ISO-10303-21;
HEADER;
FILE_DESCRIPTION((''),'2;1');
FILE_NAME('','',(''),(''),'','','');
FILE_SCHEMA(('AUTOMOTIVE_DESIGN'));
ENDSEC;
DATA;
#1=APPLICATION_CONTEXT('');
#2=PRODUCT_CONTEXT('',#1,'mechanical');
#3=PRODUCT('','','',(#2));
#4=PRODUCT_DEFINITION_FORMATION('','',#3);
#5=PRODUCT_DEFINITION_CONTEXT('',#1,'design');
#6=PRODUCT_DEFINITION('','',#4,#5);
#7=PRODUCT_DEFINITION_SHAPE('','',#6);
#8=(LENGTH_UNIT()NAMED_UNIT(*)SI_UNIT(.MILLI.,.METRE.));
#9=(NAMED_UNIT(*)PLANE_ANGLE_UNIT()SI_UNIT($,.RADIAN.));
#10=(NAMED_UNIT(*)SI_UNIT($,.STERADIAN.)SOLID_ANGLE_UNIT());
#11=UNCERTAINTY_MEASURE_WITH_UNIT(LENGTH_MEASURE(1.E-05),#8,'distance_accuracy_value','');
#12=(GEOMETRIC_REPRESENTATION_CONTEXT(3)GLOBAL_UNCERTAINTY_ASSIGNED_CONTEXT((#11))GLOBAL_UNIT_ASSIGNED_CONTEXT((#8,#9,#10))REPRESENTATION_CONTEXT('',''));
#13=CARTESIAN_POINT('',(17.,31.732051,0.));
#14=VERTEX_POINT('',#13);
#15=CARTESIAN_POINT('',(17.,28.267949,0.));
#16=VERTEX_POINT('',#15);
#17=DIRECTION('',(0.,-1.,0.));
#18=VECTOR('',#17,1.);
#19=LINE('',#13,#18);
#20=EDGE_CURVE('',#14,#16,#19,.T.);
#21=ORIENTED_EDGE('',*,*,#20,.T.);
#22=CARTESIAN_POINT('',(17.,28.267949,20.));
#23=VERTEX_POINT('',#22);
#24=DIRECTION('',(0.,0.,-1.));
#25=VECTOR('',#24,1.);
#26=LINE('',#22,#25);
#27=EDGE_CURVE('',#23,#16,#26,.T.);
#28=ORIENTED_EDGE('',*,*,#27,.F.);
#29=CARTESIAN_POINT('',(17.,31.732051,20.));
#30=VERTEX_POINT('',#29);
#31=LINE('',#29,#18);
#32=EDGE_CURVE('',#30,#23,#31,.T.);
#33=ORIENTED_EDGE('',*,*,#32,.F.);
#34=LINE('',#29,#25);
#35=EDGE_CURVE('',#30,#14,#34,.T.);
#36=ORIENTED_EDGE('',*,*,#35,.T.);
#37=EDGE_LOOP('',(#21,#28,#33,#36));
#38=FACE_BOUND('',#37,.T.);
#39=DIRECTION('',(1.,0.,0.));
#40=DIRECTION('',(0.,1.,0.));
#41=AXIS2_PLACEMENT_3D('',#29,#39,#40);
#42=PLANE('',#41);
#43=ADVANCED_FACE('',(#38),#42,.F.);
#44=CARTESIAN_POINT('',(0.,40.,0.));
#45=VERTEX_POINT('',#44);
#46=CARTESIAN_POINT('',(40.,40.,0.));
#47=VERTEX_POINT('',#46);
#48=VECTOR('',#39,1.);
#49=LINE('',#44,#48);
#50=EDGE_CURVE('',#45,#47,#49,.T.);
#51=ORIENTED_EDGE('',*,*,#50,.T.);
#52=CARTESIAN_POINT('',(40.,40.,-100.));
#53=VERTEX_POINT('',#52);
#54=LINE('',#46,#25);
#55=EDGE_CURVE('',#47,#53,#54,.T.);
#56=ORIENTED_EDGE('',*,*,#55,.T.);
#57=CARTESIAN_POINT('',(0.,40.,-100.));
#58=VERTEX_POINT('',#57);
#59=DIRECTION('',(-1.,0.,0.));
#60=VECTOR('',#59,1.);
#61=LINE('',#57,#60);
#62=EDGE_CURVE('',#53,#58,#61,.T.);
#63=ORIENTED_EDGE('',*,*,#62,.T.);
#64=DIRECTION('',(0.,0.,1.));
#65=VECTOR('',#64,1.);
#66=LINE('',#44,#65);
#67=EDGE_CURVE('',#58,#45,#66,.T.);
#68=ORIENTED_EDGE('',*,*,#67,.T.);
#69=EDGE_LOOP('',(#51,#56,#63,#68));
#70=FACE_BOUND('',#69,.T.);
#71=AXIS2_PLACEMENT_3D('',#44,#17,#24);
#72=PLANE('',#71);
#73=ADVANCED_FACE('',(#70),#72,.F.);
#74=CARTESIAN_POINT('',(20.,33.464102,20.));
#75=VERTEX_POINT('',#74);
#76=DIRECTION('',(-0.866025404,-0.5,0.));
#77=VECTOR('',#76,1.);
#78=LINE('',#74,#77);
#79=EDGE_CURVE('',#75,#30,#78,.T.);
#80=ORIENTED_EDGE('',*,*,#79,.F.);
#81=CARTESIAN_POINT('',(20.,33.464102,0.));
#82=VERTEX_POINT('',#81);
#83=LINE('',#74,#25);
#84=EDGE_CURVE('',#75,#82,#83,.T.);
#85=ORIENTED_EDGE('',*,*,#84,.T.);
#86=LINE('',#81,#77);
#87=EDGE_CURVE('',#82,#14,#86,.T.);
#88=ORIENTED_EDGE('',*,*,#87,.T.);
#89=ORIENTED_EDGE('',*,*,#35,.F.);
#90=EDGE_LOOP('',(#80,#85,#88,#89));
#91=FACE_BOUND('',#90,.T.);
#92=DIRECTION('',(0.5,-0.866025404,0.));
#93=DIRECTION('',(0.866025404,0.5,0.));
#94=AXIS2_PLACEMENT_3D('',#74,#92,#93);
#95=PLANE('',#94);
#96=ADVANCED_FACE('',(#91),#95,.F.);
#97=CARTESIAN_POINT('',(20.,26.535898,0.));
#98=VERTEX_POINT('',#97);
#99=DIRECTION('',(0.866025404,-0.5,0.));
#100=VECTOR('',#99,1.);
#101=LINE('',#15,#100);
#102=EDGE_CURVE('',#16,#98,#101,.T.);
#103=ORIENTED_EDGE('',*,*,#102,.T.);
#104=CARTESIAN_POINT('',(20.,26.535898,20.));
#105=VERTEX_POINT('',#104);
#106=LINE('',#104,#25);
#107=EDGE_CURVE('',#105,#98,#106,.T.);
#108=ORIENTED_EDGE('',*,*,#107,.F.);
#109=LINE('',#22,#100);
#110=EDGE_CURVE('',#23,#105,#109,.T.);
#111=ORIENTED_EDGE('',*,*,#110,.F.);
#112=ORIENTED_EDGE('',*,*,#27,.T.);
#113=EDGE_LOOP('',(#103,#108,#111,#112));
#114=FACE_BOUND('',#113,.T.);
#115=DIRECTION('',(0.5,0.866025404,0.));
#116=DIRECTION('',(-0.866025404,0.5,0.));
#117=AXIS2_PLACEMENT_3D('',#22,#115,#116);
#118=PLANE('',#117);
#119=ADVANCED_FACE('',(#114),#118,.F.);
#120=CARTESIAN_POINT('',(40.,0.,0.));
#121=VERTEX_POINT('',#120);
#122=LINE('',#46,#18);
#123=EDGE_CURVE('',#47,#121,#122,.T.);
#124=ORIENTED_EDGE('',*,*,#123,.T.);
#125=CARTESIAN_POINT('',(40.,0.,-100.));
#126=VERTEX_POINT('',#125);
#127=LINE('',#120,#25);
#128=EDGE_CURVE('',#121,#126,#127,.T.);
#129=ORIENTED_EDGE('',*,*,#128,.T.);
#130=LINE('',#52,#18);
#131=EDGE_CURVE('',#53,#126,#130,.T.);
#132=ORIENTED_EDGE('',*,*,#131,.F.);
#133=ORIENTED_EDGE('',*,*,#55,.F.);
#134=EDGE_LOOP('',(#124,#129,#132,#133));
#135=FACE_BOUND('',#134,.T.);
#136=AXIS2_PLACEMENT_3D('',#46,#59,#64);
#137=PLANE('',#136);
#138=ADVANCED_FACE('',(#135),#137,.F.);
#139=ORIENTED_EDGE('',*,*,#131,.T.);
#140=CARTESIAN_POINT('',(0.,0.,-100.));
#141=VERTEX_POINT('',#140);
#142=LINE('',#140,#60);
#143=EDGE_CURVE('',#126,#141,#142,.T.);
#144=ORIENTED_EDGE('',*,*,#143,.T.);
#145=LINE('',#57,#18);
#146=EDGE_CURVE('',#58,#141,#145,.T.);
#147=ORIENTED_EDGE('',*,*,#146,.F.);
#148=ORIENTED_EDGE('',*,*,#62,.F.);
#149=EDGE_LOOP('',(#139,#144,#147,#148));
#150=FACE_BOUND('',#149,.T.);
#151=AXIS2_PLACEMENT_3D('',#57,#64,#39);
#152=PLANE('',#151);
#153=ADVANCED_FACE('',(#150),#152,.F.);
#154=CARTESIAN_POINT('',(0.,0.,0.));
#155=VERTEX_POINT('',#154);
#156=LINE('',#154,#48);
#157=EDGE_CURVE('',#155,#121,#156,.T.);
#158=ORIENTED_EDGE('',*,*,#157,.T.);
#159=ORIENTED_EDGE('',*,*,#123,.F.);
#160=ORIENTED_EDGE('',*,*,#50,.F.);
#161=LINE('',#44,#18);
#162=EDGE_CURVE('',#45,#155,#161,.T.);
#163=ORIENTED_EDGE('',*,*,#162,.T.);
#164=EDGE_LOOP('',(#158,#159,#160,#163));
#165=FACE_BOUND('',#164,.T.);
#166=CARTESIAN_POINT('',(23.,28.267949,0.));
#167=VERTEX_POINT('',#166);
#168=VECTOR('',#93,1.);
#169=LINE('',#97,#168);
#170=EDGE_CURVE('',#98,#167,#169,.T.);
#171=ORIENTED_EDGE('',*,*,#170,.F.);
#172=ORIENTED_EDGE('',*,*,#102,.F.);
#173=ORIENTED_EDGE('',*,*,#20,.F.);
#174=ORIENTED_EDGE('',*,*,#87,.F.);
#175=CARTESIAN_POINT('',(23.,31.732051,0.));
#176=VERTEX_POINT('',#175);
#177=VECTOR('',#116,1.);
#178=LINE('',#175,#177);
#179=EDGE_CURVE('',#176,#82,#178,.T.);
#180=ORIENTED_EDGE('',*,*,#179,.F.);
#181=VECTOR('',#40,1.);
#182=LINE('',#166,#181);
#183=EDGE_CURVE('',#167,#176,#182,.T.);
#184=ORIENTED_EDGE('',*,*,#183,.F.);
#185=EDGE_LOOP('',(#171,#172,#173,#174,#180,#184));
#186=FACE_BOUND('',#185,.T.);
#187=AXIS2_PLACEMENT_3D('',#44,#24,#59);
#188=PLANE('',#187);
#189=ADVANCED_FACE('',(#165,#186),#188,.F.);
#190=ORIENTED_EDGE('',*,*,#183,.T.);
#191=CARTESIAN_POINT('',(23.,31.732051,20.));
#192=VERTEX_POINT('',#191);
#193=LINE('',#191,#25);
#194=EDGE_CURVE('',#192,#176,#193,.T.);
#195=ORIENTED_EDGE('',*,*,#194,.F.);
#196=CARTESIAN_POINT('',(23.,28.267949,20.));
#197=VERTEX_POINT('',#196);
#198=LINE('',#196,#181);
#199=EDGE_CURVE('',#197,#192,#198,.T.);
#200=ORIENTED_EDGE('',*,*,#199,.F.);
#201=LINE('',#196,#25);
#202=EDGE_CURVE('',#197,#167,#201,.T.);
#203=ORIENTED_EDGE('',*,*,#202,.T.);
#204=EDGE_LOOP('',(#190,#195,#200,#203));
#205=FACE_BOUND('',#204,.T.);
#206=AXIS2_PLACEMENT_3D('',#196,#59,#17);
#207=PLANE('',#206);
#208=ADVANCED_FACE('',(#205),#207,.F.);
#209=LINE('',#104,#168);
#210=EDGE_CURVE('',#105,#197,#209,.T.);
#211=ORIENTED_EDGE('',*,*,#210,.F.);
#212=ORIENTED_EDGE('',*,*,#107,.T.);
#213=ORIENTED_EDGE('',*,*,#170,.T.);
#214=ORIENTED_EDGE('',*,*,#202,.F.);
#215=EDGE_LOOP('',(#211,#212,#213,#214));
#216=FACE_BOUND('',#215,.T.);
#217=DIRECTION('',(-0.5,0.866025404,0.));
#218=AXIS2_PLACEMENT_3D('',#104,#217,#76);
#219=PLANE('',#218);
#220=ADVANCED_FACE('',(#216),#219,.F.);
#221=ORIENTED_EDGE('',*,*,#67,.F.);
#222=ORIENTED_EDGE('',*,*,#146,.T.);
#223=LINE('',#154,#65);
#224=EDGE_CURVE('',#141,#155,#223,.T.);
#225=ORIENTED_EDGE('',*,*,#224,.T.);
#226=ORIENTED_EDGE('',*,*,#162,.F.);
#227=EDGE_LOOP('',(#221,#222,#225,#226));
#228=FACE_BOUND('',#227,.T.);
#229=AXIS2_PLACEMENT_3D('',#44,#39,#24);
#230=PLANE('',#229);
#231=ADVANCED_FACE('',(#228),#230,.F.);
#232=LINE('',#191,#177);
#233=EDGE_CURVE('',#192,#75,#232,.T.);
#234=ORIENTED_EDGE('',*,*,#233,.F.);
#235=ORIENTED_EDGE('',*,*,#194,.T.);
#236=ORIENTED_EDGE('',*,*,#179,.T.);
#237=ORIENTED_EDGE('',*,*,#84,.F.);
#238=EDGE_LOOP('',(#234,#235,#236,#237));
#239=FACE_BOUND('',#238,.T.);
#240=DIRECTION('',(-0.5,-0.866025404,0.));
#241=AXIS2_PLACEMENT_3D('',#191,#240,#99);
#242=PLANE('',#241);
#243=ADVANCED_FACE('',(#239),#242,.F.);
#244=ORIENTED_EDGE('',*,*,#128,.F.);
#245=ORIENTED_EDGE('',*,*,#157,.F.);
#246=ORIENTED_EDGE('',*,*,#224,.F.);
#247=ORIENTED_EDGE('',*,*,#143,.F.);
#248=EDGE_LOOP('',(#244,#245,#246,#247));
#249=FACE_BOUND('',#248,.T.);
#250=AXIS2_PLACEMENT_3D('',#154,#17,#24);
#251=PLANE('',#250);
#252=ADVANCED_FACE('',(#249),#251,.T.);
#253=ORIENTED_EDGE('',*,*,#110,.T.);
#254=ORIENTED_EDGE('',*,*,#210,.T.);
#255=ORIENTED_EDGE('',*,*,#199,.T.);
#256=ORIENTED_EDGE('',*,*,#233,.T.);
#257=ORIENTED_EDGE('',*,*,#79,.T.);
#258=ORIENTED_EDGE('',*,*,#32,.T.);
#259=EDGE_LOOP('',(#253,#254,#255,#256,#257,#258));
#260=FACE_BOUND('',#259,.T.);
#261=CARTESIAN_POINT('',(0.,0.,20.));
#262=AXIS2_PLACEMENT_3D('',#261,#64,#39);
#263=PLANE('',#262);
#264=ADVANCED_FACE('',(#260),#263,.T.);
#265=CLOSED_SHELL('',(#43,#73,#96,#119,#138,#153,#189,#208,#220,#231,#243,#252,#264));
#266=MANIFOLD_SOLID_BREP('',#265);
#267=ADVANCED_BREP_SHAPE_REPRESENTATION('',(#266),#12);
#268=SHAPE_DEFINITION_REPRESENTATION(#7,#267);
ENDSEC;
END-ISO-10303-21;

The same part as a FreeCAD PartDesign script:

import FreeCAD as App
import Part
import Sketcher
from FreeCAD import Vector
Q = App.Units.Quantity


def add_polygon(sketch, points):
    """Adds a closed chain of lines whose ends are joined by coincident constraints."""
    first, n = sketch.GeometryCount, len(points)
    for a, b in zip(points, points[1:] + points[:1]):
        sketch.addGeometry(Part.LineSegment(App.Vector(*a, 0), App.Vector(*b, 0)), False)
    for i in range(n):
        sketch.addConstraint(Sketcher.Constraint("Coincident", first + i, 2, first + (i + 1) % n, 1))

doc = App.newDocument("Part")
body = doc.addObject("PartDesign::Body", "Body")

sketch1 = body.newObject("Sketcher::SketchObject", "Sketch")
sketch1.AttachmentSupport = (doc.getObject("XZ_Plane"), [""])
sketch1.MapMode = "FlatFace"
add_polygon(sketch1, [(0, -100), (0, 0), (40, 0), (40, -100)])
sketch1.addConstraint(Sketcher.Constraint("Vertical", 0))
sketch1.addConstraint(Sketcher.Constraint("Horizontal", 1))
sketch1.addConstraint(Sketcher.Constraint("Vertical", 2))
sketch1.addConstraint(Sketcher.Constraint("Horizontal", 3))
sketch1.addConstraint(Sketcher.Constraint("Coincident", 0, 2, -1, 1))
sketch1.addConstraint(Sketcher.Constraint("DistanceX", 1, 1, 1, 2, Q("40 mm")))
sketch1.addConstraint(Sketcher.Constraint("DistanceY", 0, 1, 0, 2, Q("100 mm")))
pad1 = body.newObject("PartDesign::Pad", "Pad")
pad1.Profile = sketch1
pad1.Length = 40
pad1.Reversed = True

sketch2 = body.newObject("Sketcher::SketchObject", "Sketch001")
sketch2.AttachmentSupport = (doc.getObject("XY_Plane"), [""])
sketch2.MapMode = "FlatFace"
add_polygon(sketch2, [(23, 28.3), (23, 31.7), (20, 33.5), (17, 31.7), (17, 28.3), (20, 26.5)])
sketch2.addConstraint(Sketcher.Constraint("Vertical", 0))
sketch2.addConstraint(Sketcher.Constraint("Vertical", 3))
sketch2.addConstraint(Sketcher.Constraint("Parallel", 1, 4))
sketch2.addConstraint(Sketcher.Constraint("Parallel", 2, 5))
sketch2.addConstraint(Sketcher.Constraint("Horizontal", 0, 2, 2, 2))
sketch2.addConstraint(Sketcher.Constraint("Horizontal", 3, 2, 5, 2))
sketch2.addConstraint(Sketcher.Constraint("Vertical", 1, 2, 4, 2))
sketch2.addConstraint(Sketcher.Constraint("Angle", 1, Q("150 deg")))
sketch2.addConstraint(Sketcher.Constraint("DistanceX", -1, 1, 0, 2, Q("23 mm")))
sketch2.addConstraint(Sketcher.Constraint("DistanceX", -1, 1, 1, 2, Q("20 mm")))
sketch2.addConstraint(Sketcher.Constraint("DistanceY", 0, 1, 0, 2, Q("3.464102 mm")))
sketch2.addConstraint(Sketcher.Constraint("DistanceY", -1, 1, 1, 2, Q("33.464102 mm")))
pad2 = body.newObject("PartDesign::Pad", "Pad001")
pad2.Profile = sketch2
pad2.Length = 20

doc.recompute()
